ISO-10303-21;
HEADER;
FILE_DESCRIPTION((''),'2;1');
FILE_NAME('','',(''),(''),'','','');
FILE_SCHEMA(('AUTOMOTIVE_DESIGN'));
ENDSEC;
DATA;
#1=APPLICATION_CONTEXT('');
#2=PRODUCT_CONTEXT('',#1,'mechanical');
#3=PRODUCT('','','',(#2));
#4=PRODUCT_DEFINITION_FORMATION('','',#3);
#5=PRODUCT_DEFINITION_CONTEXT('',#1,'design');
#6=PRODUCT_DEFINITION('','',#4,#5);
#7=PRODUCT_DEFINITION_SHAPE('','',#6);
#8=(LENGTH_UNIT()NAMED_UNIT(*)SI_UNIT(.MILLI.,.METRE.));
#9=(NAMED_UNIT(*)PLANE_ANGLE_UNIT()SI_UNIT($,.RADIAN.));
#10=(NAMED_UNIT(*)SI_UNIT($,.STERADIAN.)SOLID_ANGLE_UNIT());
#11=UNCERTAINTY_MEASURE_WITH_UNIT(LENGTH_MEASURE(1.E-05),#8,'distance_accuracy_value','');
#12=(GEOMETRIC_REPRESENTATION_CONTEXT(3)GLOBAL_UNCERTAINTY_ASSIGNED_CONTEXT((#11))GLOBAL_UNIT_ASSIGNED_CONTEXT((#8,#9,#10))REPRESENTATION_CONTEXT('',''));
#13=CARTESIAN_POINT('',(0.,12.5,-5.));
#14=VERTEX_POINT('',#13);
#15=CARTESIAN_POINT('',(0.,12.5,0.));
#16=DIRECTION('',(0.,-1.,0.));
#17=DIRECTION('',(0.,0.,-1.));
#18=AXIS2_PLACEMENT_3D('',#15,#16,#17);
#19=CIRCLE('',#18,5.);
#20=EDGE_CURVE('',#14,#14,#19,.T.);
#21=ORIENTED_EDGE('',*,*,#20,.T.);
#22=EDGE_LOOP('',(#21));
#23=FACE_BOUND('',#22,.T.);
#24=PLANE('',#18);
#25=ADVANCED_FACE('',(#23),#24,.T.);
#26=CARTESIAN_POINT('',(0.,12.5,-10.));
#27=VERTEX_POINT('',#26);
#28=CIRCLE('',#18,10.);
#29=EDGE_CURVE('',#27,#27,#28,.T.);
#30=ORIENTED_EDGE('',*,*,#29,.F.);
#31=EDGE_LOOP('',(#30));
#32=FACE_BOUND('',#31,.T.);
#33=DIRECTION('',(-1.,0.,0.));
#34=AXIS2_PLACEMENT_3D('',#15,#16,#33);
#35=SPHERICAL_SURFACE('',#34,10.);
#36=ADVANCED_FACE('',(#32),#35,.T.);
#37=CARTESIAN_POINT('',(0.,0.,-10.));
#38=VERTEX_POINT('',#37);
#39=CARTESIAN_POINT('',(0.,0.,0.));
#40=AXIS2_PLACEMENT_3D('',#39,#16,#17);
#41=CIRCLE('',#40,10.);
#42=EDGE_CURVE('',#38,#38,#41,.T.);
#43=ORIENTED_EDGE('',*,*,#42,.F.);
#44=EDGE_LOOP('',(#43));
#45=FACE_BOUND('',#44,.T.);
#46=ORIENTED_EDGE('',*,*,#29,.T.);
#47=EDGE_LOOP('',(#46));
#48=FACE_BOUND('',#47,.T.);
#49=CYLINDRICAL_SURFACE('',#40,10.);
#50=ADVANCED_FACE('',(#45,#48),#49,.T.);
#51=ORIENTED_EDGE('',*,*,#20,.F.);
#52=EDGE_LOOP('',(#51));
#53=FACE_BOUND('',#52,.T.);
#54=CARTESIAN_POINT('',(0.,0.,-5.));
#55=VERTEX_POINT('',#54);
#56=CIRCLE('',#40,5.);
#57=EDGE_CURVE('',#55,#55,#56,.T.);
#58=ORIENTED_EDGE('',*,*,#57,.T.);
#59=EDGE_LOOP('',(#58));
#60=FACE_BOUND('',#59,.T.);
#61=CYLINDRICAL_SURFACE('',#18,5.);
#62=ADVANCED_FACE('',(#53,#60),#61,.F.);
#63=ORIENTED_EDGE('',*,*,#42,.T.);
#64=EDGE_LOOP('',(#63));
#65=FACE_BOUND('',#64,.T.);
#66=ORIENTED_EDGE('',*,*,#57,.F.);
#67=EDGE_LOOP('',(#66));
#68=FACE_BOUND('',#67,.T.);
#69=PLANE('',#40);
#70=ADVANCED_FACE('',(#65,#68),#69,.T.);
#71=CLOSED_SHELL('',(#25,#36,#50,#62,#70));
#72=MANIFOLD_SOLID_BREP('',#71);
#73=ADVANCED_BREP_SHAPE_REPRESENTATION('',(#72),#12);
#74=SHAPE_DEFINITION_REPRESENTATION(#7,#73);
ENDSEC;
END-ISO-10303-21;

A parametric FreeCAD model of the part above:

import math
import FreeCAD as App
import Part
import Sketcher
from FreeCAD import Vector
Q = App.Units.Quantity

doc = App.newDocument("Part")
body = doc.addObject("PartDesign::Body", "Body")

sketch1 = body.newObject("Sketcher::SketchObject", "Sketch")
sketch1.AttachmentSupport = (doc.getObject("XY_Plane"), [""])
sketch1.MapMode = "FlatFace"
sketch1.addGeometry([
    Part.LineSegment(Vector(-10, 0, 0), Vector(0, 0, 0)),
    Part.LineSegment(Vector(0, 0, 0), Vector(0, 22, 0)),
    Part.ArcOfCircle(Part.Circle(Vector(0, 12, 0), Vector(0, 0, 1), 10), math.radians(90), math.radians(180)),
    Part.LineSegment(Vector(-10, 12, 0), Vector(-10, 0, 0)),
], False)
sketch1.addConstraint([
    Sketcher.Constraint("Coincident", 0, 2, 1, 1),
    Sketcher.Constraint("Coincident", 1, 2, 2, 1),
    Sketcher.Constraint("Tangent", 2, 2, 3, 1),
    Sketcher.Constraint("Coincident", 3, 2, 0, 1),
    Sketcher.Constraint("Horizontal", 0),
    Sketcher.Constraint("Vertical", 1),
    Sketcher.Constraint("Vertical", 3),
    Sketcher.Constraint("Coincident", 0, 2, -1, 1),
    Sketcher.Constraint("PointOnObject", 2, 3, -2),
    Sketcher.Constraint("Radius", 2, Q("10 mm")),
    Sketcher.Constraint("DistanceY", 1, 1, 1, 2, Q("22.5 mm")),
])
revolution = body.newObject("PartDesign::Revolution", "Revolution")
revolution.Profile = sketch1
revolution.ReferenceAxis = (sketch1, ["V_Axis"])
revolution.Angle = 360

sketch2 = body.newObject("Sketcher::SketchObject", "Sketch001")
sketch2.AttachmentSupport = (doc.getObject("XZ_Plane"), [""])
sketch2.MapMode = "FlatFace"
sketch2.addGeometry(Part.Circle(Vector(0, 0, 0), Vector(0, 0, 1), 5), False)
sketch2.addConstraint([
    Sketcher.Constraint("Coincident", 0, 3, -1, 1),
    Sketcher.Constraint("Diameter", 0, Q("10 mm")),
])
pocket1 = body.newObject("PartDesign::Pocket", "Pocket")
pocket1.Profile = sketch2
pocket1.Length = 12.5

doc.recompute()
